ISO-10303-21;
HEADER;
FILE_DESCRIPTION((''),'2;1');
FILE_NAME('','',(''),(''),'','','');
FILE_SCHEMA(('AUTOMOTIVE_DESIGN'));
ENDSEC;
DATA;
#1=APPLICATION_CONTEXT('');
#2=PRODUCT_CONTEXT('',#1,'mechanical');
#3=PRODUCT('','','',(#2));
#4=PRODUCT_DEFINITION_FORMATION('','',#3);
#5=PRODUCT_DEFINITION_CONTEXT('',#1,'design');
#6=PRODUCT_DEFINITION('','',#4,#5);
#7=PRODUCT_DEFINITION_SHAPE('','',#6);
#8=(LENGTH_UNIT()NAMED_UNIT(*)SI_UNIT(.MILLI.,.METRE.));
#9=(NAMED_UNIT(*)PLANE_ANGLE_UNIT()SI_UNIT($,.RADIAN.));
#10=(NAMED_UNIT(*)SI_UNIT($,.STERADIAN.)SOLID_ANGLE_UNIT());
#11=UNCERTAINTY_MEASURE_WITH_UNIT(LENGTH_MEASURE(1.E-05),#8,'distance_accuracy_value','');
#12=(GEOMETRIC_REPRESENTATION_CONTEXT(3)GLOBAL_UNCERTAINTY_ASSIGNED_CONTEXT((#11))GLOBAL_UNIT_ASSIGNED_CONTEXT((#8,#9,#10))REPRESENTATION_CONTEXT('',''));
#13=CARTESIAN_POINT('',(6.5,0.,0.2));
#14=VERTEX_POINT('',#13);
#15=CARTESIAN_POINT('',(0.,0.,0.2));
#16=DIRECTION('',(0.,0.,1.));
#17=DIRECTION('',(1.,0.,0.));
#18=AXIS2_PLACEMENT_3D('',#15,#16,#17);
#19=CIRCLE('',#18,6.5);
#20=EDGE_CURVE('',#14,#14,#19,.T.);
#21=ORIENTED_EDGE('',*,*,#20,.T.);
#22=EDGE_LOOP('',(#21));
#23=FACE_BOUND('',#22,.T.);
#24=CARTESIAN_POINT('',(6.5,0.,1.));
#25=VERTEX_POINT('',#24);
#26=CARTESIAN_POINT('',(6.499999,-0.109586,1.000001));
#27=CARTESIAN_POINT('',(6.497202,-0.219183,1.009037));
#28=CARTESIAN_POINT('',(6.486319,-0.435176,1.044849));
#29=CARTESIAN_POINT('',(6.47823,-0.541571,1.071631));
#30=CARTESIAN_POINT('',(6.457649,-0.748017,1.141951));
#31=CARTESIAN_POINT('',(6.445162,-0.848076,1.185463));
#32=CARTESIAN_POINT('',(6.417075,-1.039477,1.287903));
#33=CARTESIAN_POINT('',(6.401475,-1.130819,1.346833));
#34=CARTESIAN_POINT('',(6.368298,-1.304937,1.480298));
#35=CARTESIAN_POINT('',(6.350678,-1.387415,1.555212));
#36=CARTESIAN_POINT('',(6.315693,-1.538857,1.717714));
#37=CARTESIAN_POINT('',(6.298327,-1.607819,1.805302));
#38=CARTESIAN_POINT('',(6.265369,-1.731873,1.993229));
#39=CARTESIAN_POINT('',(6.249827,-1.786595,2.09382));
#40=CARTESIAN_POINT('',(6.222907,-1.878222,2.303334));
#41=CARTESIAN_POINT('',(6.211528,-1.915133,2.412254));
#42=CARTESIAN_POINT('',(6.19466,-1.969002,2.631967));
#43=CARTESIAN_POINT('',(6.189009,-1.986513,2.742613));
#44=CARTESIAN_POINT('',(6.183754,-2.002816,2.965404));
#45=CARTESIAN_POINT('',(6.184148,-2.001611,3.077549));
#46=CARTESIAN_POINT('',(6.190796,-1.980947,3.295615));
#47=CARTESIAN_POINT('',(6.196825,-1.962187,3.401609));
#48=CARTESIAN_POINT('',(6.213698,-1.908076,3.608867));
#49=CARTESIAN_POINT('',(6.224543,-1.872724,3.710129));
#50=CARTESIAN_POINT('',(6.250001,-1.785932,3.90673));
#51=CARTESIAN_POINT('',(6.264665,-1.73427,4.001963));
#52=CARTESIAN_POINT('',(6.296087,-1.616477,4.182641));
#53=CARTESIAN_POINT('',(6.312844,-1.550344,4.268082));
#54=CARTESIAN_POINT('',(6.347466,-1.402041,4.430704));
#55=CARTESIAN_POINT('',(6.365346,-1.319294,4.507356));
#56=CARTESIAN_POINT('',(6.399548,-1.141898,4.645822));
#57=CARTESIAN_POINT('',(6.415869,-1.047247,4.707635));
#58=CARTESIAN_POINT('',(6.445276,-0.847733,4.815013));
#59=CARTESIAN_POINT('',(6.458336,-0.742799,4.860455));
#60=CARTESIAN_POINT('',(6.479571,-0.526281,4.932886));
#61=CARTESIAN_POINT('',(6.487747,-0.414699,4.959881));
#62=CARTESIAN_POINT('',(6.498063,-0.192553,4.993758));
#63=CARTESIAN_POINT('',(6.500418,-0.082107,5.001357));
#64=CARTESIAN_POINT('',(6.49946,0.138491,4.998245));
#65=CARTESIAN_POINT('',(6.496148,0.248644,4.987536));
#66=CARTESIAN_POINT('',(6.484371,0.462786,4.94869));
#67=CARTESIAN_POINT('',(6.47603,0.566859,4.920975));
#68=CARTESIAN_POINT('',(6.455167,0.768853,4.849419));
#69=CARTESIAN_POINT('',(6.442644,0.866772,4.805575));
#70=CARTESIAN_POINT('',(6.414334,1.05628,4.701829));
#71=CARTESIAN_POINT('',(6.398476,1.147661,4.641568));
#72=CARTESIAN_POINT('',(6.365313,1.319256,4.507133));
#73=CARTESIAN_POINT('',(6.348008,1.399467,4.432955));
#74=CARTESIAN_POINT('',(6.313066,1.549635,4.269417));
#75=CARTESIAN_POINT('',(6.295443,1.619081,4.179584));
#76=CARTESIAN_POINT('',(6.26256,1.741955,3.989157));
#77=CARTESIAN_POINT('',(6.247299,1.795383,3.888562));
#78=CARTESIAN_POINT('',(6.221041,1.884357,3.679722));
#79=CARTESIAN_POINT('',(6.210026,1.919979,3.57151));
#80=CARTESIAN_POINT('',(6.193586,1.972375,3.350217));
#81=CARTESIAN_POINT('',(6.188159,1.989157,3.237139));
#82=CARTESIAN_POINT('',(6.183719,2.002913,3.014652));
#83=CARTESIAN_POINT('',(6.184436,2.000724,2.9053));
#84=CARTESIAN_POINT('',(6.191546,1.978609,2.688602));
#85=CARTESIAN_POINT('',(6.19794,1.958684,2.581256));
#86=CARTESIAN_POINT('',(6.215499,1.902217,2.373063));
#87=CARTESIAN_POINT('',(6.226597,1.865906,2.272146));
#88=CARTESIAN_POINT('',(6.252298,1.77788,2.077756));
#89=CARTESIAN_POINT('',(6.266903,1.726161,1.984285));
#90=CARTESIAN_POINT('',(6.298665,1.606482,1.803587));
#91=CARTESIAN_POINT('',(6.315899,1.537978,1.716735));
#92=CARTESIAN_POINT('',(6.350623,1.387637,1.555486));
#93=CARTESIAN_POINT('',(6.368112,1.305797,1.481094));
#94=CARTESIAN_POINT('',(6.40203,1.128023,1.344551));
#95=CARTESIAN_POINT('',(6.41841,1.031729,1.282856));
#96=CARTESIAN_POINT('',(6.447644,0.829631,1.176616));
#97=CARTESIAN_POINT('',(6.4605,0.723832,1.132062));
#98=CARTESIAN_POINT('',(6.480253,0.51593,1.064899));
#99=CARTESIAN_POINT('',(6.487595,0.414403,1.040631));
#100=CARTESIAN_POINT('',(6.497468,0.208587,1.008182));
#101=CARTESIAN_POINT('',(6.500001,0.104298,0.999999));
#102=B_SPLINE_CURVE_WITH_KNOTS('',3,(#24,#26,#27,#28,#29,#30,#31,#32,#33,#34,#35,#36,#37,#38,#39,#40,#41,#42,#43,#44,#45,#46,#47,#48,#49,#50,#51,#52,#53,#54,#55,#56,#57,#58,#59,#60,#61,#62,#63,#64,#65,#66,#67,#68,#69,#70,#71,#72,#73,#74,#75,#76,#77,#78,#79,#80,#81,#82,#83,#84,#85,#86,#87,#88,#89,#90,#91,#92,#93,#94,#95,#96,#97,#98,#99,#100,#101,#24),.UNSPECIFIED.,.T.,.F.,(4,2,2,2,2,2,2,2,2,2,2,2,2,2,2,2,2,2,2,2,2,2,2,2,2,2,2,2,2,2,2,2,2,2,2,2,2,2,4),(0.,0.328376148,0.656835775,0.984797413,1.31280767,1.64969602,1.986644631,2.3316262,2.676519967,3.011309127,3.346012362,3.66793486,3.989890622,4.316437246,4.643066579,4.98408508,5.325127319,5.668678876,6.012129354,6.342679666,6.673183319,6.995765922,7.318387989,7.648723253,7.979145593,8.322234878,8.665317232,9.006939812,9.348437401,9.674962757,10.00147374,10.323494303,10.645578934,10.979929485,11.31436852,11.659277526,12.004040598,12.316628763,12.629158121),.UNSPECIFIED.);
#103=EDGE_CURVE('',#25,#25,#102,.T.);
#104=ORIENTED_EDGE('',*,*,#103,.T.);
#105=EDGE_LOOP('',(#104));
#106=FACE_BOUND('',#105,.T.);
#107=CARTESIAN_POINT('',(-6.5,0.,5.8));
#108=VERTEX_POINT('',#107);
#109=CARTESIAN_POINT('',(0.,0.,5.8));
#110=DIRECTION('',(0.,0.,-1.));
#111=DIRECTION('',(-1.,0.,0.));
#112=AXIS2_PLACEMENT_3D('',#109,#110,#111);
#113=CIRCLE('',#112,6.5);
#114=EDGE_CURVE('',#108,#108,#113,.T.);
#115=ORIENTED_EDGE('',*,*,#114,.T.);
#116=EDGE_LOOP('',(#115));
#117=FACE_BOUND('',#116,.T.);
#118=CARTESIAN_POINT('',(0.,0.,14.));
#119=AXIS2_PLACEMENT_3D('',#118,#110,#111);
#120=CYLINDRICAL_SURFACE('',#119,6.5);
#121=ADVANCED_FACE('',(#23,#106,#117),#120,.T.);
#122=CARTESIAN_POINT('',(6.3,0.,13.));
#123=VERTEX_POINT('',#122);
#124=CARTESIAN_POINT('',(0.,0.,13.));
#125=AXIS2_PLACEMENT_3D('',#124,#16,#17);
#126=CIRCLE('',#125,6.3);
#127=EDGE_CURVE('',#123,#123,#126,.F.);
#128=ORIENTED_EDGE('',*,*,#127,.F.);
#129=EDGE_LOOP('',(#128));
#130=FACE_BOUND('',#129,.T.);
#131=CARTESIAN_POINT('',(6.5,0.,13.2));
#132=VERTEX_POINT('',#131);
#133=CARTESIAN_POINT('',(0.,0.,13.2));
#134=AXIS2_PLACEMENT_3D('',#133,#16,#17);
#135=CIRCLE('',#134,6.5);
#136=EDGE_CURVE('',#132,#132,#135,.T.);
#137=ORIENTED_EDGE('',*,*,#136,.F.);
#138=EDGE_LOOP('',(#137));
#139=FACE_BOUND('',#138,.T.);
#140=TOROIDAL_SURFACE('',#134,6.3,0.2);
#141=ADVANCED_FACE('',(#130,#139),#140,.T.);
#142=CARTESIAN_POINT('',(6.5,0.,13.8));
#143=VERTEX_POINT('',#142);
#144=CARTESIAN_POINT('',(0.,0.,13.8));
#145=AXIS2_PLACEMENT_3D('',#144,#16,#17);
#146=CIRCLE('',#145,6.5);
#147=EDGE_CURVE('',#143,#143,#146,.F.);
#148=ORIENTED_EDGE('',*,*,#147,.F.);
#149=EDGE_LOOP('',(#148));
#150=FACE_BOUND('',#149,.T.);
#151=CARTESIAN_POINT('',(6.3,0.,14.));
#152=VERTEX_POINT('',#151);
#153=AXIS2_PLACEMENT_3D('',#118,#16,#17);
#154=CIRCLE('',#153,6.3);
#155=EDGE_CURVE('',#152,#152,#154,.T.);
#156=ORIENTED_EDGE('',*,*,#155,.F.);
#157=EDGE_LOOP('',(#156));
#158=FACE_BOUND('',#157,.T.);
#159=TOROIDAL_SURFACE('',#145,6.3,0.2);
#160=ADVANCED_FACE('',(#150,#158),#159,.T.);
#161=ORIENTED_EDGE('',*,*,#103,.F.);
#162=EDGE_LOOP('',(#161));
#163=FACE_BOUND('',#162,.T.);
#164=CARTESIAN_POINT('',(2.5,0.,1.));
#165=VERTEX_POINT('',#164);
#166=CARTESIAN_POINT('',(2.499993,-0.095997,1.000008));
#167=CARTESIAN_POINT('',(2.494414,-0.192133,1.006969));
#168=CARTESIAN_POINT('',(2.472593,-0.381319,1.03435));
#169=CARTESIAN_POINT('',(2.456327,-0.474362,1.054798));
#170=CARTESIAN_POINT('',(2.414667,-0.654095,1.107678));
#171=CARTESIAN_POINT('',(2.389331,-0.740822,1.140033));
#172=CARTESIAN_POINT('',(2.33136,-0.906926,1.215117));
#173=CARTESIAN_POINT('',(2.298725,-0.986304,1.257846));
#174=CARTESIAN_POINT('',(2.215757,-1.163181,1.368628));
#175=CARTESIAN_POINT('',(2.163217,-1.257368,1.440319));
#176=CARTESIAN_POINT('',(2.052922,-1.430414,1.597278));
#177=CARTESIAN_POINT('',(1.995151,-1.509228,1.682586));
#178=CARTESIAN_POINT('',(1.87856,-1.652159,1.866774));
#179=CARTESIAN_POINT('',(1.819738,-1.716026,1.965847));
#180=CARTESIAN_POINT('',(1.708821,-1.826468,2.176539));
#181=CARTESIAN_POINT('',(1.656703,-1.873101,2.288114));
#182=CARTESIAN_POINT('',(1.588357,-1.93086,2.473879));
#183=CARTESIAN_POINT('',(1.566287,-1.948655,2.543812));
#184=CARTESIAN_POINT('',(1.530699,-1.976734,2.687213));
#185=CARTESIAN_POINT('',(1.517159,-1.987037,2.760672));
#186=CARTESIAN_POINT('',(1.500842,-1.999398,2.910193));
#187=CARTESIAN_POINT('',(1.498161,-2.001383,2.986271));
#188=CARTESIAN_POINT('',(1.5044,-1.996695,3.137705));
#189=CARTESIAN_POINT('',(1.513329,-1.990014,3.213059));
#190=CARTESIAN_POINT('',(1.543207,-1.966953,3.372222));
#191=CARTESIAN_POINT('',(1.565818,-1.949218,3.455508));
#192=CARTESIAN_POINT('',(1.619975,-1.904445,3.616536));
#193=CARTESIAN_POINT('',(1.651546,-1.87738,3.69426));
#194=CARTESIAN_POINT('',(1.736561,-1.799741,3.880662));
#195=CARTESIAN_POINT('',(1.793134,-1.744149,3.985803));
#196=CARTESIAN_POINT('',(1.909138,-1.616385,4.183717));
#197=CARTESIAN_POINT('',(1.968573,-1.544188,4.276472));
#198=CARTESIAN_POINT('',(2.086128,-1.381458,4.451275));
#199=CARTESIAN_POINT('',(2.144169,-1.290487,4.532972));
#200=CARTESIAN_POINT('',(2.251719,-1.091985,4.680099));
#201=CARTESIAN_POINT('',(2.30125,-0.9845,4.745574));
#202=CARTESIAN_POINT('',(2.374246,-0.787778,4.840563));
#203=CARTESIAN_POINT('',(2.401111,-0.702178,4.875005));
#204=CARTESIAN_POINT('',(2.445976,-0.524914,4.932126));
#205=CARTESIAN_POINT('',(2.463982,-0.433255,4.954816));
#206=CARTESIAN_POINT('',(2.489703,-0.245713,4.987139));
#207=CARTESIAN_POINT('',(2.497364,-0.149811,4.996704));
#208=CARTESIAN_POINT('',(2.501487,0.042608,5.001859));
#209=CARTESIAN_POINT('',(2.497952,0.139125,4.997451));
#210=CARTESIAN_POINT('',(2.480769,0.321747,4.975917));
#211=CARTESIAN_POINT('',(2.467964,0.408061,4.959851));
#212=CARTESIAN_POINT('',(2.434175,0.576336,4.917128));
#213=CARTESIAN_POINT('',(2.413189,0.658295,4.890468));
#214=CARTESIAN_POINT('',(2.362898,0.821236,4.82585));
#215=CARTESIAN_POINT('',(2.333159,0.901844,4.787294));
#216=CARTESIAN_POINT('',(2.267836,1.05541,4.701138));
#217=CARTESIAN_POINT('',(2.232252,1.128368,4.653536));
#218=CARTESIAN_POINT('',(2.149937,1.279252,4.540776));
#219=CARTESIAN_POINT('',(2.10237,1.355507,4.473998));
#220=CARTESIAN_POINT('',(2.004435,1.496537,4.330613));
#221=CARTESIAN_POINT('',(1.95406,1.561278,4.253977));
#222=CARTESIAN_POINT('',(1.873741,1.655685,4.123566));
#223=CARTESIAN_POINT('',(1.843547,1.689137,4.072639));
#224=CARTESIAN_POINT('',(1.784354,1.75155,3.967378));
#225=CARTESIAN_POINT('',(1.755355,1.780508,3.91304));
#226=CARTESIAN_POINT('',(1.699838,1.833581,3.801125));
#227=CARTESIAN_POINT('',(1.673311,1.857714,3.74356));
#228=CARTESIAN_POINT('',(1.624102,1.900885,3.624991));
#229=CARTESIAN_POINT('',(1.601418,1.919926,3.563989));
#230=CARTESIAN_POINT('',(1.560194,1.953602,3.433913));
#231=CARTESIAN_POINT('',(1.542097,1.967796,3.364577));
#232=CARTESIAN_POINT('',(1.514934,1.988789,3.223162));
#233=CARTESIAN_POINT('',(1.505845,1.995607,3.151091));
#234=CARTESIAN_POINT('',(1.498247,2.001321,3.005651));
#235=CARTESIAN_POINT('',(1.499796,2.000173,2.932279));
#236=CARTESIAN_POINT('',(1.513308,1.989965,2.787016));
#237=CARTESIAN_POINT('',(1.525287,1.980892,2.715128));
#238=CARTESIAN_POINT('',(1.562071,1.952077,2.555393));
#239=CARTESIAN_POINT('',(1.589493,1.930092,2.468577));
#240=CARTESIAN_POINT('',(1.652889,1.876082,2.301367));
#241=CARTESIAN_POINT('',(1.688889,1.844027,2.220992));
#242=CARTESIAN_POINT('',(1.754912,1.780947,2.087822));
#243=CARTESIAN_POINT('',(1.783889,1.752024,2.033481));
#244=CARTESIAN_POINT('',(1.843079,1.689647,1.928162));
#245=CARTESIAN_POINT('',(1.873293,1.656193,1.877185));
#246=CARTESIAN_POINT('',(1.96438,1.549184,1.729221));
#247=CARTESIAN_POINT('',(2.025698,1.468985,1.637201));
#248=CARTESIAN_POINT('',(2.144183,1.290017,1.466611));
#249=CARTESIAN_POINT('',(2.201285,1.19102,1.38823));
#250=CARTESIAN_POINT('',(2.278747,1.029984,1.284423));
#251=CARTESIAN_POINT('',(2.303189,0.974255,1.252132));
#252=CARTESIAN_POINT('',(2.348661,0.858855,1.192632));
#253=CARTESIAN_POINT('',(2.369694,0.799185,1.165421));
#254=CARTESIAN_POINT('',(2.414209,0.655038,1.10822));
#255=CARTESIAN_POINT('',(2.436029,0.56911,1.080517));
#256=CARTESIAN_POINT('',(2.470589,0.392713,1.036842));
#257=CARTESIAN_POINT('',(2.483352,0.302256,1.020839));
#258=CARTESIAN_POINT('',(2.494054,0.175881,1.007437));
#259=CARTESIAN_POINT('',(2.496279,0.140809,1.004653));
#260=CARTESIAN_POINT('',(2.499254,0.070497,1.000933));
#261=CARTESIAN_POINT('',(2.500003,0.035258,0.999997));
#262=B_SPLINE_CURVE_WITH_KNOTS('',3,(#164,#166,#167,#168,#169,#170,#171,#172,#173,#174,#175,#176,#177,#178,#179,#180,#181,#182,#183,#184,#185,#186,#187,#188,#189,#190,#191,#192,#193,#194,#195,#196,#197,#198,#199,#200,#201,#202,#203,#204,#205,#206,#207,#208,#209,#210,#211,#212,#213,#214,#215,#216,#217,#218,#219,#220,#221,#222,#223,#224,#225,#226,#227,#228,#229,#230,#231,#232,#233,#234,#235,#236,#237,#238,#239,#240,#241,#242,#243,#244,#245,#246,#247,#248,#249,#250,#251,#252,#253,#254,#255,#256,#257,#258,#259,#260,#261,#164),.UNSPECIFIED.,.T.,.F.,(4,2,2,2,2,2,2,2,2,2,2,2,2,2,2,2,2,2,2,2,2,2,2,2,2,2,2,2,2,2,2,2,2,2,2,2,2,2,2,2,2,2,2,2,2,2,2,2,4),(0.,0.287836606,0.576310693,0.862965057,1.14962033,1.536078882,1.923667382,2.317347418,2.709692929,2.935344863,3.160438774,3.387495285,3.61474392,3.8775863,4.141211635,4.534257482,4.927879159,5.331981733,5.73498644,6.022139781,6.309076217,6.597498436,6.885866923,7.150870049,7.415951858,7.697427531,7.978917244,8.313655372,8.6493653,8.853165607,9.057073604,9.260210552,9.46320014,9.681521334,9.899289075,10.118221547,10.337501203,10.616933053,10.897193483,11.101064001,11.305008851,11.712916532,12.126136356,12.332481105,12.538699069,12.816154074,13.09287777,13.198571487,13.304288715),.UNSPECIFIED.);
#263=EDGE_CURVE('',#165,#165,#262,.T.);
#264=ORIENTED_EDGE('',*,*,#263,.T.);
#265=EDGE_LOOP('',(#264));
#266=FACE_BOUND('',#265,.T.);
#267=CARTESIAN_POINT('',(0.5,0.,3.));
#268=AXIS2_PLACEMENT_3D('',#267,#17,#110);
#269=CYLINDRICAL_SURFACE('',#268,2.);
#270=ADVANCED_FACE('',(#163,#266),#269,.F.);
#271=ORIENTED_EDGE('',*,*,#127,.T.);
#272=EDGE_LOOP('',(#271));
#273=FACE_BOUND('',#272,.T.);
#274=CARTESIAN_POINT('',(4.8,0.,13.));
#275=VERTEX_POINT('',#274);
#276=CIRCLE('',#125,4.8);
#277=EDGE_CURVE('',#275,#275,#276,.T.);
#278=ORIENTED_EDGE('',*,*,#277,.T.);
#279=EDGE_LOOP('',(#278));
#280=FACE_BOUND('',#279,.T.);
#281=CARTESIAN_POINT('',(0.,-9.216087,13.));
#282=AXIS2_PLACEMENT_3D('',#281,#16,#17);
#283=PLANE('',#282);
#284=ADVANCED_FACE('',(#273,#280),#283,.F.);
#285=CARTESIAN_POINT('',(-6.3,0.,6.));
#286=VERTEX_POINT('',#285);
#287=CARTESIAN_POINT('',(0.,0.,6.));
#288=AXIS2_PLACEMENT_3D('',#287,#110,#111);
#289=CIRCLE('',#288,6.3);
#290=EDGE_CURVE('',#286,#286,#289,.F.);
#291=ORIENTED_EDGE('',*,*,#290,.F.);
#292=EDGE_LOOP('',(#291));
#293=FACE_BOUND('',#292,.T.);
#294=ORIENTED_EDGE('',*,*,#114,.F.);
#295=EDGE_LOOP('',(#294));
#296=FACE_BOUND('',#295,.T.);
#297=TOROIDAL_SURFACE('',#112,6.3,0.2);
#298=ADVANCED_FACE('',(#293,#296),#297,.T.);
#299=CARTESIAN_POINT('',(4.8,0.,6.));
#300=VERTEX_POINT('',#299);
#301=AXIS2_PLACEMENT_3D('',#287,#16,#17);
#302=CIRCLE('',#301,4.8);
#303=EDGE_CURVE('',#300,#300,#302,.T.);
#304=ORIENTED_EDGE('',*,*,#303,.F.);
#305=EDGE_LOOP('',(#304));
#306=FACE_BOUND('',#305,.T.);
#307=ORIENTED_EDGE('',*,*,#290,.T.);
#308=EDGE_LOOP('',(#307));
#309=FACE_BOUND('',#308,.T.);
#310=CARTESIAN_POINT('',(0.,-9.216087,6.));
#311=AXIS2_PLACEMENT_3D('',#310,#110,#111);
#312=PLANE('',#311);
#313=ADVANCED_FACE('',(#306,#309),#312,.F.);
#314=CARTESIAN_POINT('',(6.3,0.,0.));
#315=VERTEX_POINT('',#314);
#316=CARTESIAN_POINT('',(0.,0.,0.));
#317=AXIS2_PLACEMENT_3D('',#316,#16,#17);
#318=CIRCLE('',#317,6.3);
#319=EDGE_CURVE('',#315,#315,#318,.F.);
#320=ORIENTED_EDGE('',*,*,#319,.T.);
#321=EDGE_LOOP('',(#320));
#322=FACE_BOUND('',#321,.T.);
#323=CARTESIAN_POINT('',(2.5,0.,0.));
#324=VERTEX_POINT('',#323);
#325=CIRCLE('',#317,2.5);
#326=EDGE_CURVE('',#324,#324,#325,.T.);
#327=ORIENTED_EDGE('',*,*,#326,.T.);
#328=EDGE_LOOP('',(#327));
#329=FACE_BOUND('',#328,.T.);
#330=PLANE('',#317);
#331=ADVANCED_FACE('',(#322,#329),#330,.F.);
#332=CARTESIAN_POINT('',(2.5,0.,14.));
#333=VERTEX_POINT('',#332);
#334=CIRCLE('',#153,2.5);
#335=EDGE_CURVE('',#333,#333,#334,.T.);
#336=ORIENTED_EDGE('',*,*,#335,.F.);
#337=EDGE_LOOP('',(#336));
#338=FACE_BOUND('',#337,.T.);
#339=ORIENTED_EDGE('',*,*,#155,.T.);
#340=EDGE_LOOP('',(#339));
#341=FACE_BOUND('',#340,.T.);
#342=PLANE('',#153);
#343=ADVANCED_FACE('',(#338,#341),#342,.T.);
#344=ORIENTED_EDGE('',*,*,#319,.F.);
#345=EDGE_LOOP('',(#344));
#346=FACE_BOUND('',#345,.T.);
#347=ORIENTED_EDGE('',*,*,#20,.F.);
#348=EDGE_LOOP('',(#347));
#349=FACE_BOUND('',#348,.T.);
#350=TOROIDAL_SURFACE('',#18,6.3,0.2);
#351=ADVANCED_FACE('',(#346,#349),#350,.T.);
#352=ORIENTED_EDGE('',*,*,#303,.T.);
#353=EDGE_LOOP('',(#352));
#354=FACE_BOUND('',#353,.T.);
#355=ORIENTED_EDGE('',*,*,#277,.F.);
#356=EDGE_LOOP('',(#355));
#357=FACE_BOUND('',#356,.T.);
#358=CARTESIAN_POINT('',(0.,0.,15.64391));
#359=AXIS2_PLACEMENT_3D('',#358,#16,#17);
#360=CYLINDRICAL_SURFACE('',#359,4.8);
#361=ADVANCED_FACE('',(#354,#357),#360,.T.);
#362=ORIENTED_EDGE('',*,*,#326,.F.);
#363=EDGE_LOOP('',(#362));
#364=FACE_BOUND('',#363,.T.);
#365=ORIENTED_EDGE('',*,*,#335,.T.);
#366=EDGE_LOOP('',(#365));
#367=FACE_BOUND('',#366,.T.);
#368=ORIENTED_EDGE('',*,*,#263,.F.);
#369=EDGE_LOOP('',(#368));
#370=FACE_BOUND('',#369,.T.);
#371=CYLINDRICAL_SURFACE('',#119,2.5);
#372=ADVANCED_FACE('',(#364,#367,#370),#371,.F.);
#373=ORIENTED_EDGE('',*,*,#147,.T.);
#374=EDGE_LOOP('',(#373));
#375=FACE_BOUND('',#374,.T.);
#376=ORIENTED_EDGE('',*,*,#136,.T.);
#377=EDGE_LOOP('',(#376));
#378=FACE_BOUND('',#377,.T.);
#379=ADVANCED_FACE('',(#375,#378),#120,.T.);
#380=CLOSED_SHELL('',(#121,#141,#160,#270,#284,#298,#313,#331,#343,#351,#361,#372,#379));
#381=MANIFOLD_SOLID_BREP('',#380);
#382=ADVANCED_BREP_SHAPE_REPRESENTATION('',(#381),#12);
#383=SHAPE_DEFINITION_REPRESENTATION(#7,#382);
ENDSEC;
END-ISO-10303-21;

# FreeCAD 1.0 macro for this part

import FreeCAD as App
import Part
import Sketcher
Q = App.Units.Quantity


def edges_at(feature, points):
    """Names of the edges that pass closest to the given points."""
    edges = feature.Shape.Edges
    near = lambda p: min(range(len(edges)), key=lambda i: edges[i].distToShape(Part.Vertex(*p))[0])
    return sorted({f"Edge{near(p) + 1}" for p in points})

doc = App.newDocument("Part")
body = doc.addObject("PartDesign::Body", "Body")

sketch1 = body.newObject("Sketcher::SketchObject", "Sketch")
sketch1.AttachmentSupport = (doc.getObject("XY_Plane"), [""])
sketch1.MapMode = "FlatFace"
sketch1.addGeometry([
    Part.Circle(App.Vector(0, 0, 0), App.Vector(0, 0, 1), 6.5),
    Part.Circle(App.Vector(0, 0, 0), App.Vector(0, 0, 1), 2.5),
], False)
sketch1.addConstraint([
    Sketcher.Constraint("Coincident", 0, 3, -1, 1),
    Sketcher.Constraint("Coincident", 1, 3, -1, 1),
    Sketcher.Constraint("Diameter", 0, Q("13 mm")),
    Sketcher.Constraint("Diameter", 1, Q("5 mm")),
])
pad1 = body.newObject("PartDesign::Pad", "Pad")
pad1.Profile = sketch1
pad1.Length = 14

sketch2 = body.newObject("Sketcher::SketchObject", "Sketch001")
sketch2.AttachmentSupport = (doc.getObject("YZ_Plane"), [""])
sketch2.MapMode = "FlatFace"
sketch2.addGeometry([
    Part.LineSegment(App.Vector(-4.8, 13, 0), App.Vector(-9.2, 13, 0)),
    Part.LineSegment(App.Vector(-9.2, 13, 0), App.Vector(-9.2, 6, 0)),
    Part.LineSegment(App.Vector(-9.2, 6, 0), App.Vector(-4.8, 6, 0)),
    Part.LineSegment(App.Vector(-4.8, 6, 0), App.Vector(-4.8, 13, 0)),
], False)
sketch2.addConstraint([
    Sketcher.Constraint("Coincident", 0, 2, 1, 1),
    Sketcher.Constraint("Coincident", 1, 2, 2, 1),
    Sketcher.Constraint("Coincident", 2, 2, 3, 1),
    Sketcher.Constraint("Coincident", 3, 2, 0, 1),
    Sketcher.Constraint("Horizontal", 0),
    Sketcher.Constraint("Vertical", 1),
    Sketcher.Constraint("Horizontal", 2),
    Sketcher.Constraint("Vertical", 3),
    Sketcher.Constraint("DistanceY", 1, 2, 1, 1, Q("7 mm")),
    Sketcher.Constraint("DistanceY", -1, 1, 0, 2, Q("13 mm")),
    Sketcher.Constraint("DistanceX", 2, 2, -1, 1, Q("4.8 mm")),
    Sketcher.Constraint("DistanceX", 0, 2, 0, 1, Q("4.416087 mm")),
])
groove = body.newObject("PartDesign::Groove", "Groove")
groove.Profile = sketch2
groove.ReferenceAxis = (sketch2, ["V_Axis"])
groove.Angle = 360
doc.recompute()

fillet = body.newObject("PartDesign::Fillet", "Fillet")
fillet.Base = (groove, edges_at(groove, [
    (-6.5, 0, 13),
    (-6.5, 0, 6),
    (-6.5, 0, 0),
    (-6.5, 0, 14),
]))
fillet.Radius = 0.2

sketch3 = body.newObject("Sketcher::SketchObject", "Sketch002")
sketch3.AttachmentSupport = (doc.getObject("YZ_Plane"), [""])
sketch3.MapMode = "FlatFace"
sketch3.AttachmentOffset = App.Placement(App.Vector(0, 0, 6.5), App.Rotation())
sketch3.addGeometry(Part.Circle(App.Vector(0, 3, 0), App.Vector(0, 0, 1), 2), False)
sketch3.addConstraint([
    Sketcher.Constraint("PointOnObject", 0, 3, -2),
    Sketcher.Constraint("Diameter", 0, Q("4 mm")),
    Sketcher.Constraint("DistanceY", -1, 1, 0, 3, Q("3 mm")),
])
pocket1 = body.newObject("PartDesign::Pocket", "Pocket")
pocket1.Profile = sketch3
pocket1.Length = 6

doc.recompute()
